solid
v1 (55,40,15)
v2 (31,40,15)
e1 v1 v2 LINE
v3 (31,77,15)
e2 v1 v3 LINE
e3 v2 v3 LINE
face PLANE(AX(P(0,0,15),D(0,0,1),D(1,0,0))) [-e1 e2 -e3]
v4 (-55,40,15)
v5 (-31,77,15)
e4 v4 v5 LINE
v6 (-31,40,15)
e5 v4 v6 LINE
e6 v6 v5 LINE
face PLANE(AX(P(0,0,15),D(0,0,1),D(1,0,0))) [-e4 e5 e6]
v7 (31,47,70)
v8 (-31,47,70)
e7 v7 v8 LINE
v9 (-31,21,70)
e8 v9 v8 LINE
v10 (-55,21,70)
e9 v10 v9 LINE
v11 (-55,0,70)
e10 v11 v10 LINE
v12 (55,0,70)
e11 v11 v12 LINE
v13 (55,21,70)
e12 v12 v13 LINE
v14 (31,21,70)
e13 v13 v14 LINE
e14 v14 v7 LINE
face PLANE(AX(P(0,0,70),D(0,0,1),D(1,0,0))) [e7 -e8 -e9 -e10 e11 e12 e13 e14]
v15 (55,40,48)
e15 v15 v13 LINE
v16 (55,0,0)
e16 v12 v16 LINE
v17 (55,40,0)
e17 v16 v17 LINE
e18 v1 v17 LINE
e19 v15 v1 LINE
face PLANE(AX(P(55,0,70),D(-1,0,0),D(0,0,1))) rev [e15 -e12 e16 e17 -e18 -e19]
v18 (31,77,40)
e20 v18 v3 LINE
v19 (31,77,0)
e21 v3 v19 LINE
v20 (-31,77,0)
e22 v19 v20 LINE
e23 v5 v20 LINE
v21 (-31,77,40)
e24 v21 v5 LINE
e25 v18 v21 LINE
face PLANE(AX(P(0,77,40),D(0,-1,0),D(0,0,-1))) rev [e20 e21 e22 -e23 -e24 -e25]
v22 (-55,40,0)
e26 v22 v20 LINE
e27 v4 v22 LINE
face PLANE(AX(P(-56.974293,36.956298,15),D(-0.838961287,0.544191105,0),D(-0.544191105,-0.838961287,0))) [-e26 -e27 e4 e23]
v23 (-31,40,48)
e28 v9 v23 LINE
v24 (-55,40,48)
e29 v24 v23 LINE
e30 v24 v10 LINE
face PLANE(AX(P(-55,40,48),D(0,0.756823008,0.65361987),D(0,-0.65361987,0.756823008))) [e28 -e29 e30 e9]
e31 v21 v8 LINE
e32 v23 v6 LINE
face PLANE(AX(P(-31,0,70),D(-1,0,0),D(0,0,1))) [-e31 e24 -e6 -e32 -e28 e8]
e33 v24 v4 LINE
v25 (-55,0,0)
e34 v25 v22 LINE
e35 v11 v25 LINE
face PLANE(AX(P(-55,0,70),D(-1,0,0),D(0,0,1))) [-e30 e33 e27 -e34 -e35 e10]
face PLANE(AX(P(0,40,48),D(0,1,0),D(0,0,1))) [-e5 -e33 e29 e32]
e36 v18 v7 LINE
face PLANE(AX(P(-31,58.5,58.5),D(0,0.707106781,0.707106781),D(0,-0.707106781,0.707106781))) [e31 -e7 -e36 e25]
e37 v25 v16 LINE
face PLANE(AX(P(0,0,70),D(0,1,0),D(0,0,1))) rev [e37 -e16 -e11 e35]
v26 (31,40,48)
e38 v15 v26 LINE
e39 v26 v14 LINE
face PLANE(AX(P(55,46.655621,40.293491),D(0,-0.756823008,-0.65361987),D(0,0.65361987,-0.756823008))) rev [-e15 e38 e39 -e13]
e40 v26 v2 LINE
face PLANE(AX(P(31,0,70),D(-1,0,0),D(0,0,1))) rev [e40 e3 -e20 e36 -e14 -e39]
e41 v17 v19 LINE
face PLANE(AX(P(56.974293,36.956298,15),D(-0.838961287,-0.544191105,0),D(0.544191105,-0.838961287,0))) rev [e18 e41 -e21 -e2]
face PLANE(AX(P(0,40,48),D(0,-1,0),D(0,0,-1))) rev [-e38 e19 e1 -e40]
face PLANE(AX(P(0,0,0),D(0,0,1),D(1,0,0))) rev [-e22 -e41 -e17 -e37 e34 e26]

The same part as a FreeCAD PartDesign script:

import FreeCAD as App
import Part
import Sketcher
Q = App.Units.Quantity

doc = App.newDocument("Part")
body = doc.addObject("PartDesign::Body", "Body")

# Sketch on XY plane
sketch1 = body.newObject("Sketcher::SketchObject", "Sketch")
sketch1.AttachmentSupport = (doc.getObject("XY_Plane"), [""])
sketch1.MapMode = "FlatFace"
sketch1.addGeometry(Part.LineSegment(App.Vector(-55, 0, 0), App.Vector(55, 0, 0)), False)
sketch1.addGeometry(Part.LineSegment(App.Vector(55, 0, 0), App.Vector(55, 21, 0)), False)
sketch1.addGeometry(Part.LineSegment(App.Vector(55, 21, 0), App.Vector(31, 21, 0)), False)
sketch1.addGeometry(Part.LineSegment(App.Vector(31, 21, 0), App.Vector(31, 47, 0)), False)
sketch1.addGeometry(Part.LineSegment(App.Vector(31, 47, 0), App.Vector(-31, 47, 0)), False)
sketch1.addGeometry(Part.LineSegment(App.Vector(-31, 47, 0), App.Vector(-31, 21, 0)), False)
sketch1.addGeometry(Part.LineSegment(App.Vector(-31, 21, 0), App.Vector(-55, 21, 0)), False)
sketch1.addGeometry(Part.LineSegment(App.Vector(-55, 21, 0), App.Vector(-55, 0, 0)), False)
sketch1.addConstraint(Sketcher.Constraint("Coincident", 0, 2, 1, 1))
sketch1.addConstraint(Sketcher.Constraint("Coincident", 1, 2, 2, 1))
sketch1.addConstraint(Sketcher.Constraint("Coincident", 2, 2, 3, 1))
sketch1.addConstraint(Sketcher.Constraint("Coincident", 3, 2, 4, 1))
sketch1.addConstraint(Sketcher.Constraint("Coincident", 4, 2, 5, 1))
sketch1.addConstraint(Sketcher.Constraint("Coincident", 5, 2, 6, 1))
sketch1.addConstraint(Sketcher.Constraint("Coincident", 6, 2, 7, 1))
sketch1.addConstraint(Sketcher.Constraint("Coincident", 7, 2, 0, 1))
sketch1.addConstraint(Sketcher.Constraint("Horizontal", 0))
sketch1.addConstraint(Sketcher.Constraint("Vertical", 1))
sketch1.addConstraint(Sketcher.Constraint("Horizontal", 2))
sketch1.addConstraint(Sketcher.Constraint("Vertical", 3))
sketch1.addConstraint(Sketcher.Constraint("Horizontal", 4))
sketch1.addConstraint(Sketcher.Constraint("Vertical", 5))
sketch1.addConstraint(Sketcher.Constraint("Horizontal", 6))
sketch1.addConstraint(Sketcher.Constraint("Vertical", 7))
sketch1.addConstraint(Sketcher.Constraint("Symmetric", 0, 2, 7, 2, -1, 1))
sketch1.addConstraint(Sketcher.Constraint("Symmetric", 2, 2, 5, 2, -2))
sketch1.addConstraint(Sketcher.Constraint("DistanceX", 0, 1, 0, 2, Q("110 mm")))
sketch1.addConstraint(Sketcher.Constraint("DistanceX", 2, 2, 2, 1, Q("24 mm")))
sketch1.addConstraint(Sketcher.Constraint("DistanceY", 1, 1, 1, 2, Q("21 mm")))
sketch1.addConstraint(Sketcher.Constraint("DistanceY", 3, 1, 3, 2, Q("26 mm")))
pad1 = body.newObject("PartDesign::Pad", "Pad")
pad1.Profile = sketch1
pad1.Length = 70

# Sketch on XY plane
sketch2 = body.newObject("Sketcher::SketchObject", "Sketch001")
sketch2.AttachmentSupport = (doc.getObject("XY_Plane"), [""])
sketch2.MapMode = "FlatFace"
sketch2.addGeometry(Part.LineSegment(App.Vector(31, 40, 0), App.Vector(31, 21, 0)), False)
sketch2.addGeometry(Part.LineSegment(App.Vector(31, 21, 0), App.Vector(55, 21, 0)), False)
sketch2.addGeometry(Part.LineSegment(App.Vector(55, 21, 0), App.Vector(55, 40, 0)), False)
sketch2.addGeometry(Part.LineSegment(App.Vector(55, 40, 0), App.Vector(31, 40, 0)), False)
sketch2.addGeometry(Part.LineSegment(App.Vector(-55, 40, 0), App.Vector(-55, 21, 0)), False)
sketch2.addGeometry(Part.LineSegment(App.Vector(-55, 21, 0), App.Vector(-31, 21, 0)), False)
sketch2.addGeometry(Part.LineSegment(App.Vector(-31, 21, 0), App.Vector(-31, 40, 0)), False)
sketch2.addGeometry(Part.LineSegment(App.Vector(-31, 40, 0), App.Vector(-55, 40, 0)), False)
sketch2.addConstraint(Sketcher.Constraint("Coincident", 0, 2, 1, 1))
sketch2.addConstraint(Sketcher.Constraint("Coincident", 1, 2, 2, 1))
sketch2.addConstraint(Sketcher.Constraint("Coincident", 2, 2, 3, 1))
sketch2.addConstraint(Sketcher.Constraint("Coincident", 3, 2, 0, 1))
sketch2.addConstraint(Sketcher.Constraint("Coincident", 4, 2, 5, 1))
sketch2.addConstraint(Sketcher.Constraint("Coincident", 5, 2, 6, 1))
sketch2.addConstraint(Sketcher.Constraint("Coincident", 6, 2, 7, 1))
sketch2.addConstraint(Sketcher.Constraint("Coincident", 7, 2, 4, 1))
sketch2.addConstraint(Sketcher.Constraint("Vertical", 0))
sketch2.addConstraint(Sketcher.Constraint("Horizontal", 1))
sketch2.addConstraint(Sketcher.Constraint("Vertical", 2))
sketch2.addConstraint(Sketcher.Constraint("Horizontal", 3))
sketch2.addConstraint(Sketcher.Constraint("Vertical", 4))
sketch2.addConstraint(Sketcher.Constraint("Horizontal", 5))
sketch2.addConstraint(Sketcher.Constraint("Vertical", 6))
sketch2.addConstraint(Sketcher.Constraint("Horizontal", 7))
sketch2.addConstraint(Sketcher.Constraint("Symmetric", 1, 2, 4, 2, -2))
sketch2.addConstraint(Sketcher.Constraint("Symmetric", 3, 2, 6, 2, -2))
sketch2.addConstraint(Sketcher.Constraint("DistanceX", 1, 1, 1, 2, Q("24 mm")))
sketch2.addConstraint(Sketcher.Constraint("DistanceY", 0, 2, 0, 1, Q("19 mm")))
sketch2.addConstraint(Sketcher.Constraint("DistanceX", -1, 1, 0, 2, Q("31 mm")))
sketch2.addConstraint(Sketcher.Constraint("DistanceY", -1, 1, 0, 2, Q("21 mm")))
pad2 = body.newObject("PartDesign::Pad", "Pad001")
pad2.Profile = sketch2
pad2.Length = 48

# Sketch on XY plane
sketch3 = body.newObject("Sketcher::SketchObject", "Sketch002")
sketch3.AttachmentSupport = (doc.getObject("XY_Plane"), [""])
sketch3.MapMode = "FlatFace"
sketch3.addGeometry(Part.LineSegment(App.Vector(-31, 77, 0), App.Vector(-31, 47, 0)), False)
sketch3.addGeometry(Part.LineSegment(App.Vector(-31, 47, 0), App.Vector(31, 47, 0)), False)
sketch3.addGeometry(Part.LineSegment(App.Vector(31, 47, 0), App.Vector(31, 77, 0)), False)
sketch3.addGeometry(Part.LineSegment(App.Vector(31, 77, 0), App.Vector(-31, 77, 0)), False)
sketch3.addConstraint(Sketcher.Constraint("Coincident", 0, 2, 1, 1))
sketch3.addConstraint(Sketcher.Constraint("Coincident", 1, 2, 2, 1))
sketch3.addConstraint(Sketcher.Constraint("Coincident", 2, 2, 3, 1))
sketch3.addConstraint(Sketcher.Constraint("Coincident", 3, 2, 0, 1))
sketch3.addConstraint(Sketcher.Constraint("Vertical", 0))
sketch3.addConstraint(Sketcher.Constraint("Horizontal", 1))
sketch3.addConstraint(Sketcher.Constraint("Vertical", 2))
sketch3.addConstraint(Sketcher.Constraint("Horizontal", 3))
sketch3.addConstraint(Sketcher.Constraint("DistanceX", 1, 1, 1, 2, Q("62 mm")))
sketch3.addConstraint(Sketcher.Constraint("DistanceY", 0, 2, 0, 1, Q("30 mm")))
sketch3.addConstraint(Sketcher.Constraint("DistanceX", 0, 2, -1, 1, Q("31 mm")))
sketch3.addConstraint(Sketcher.Constraint("DistanceY", -1, 1, 0, 2, Q("47 mm")))
pad3 = body.newObject("PartDesign::Pad", "Pad002")
pad3.Profile = sketch3
pad3.Length = 40

# Sketch on XY plane
sketch4 = body.newObject("Sketcher::SketchObject", "Sketch003")
sketch4.AttachmentSupport = (doc.getObject("XY_Plane"), [""])
sketch4.MapMode = "FlatFace"
sketch4.addGeometry(Part.LineSegment(App.Vector(31, 40, 0), App.Vector(55, 40, 0)), False)
sketch4.addGeometry(Part.LineSegment(App.Vector(55, 40, 0), App.Vector(31, 77, 0)), False)
sketch4.addGeometry(Part.LineSegment(App.Vector(31, 77, 0), App.Vector(31, 40, 0)), False)
sketch4.addGeometry(Part.LineSegment(App.Vector(-31, 77, 0), App.Vector(-55, 40, 0)), False)
sketch4.addGeometry(Part.LineSegment(App.Vector(-55, 40, 0), App.Vector(-31, 40, 0)), False)
sketch4.addGeometry(Part.LineSegment(App.Vector(-31, 40, 0), App.Vector(-31, 77, 0)), False)
sketch4.addConstraint(Sketcher.Constraint("Coincident", 0, 2, 1, 1))
sketch4.addConstraint(Sketcher.Constraint("Coincident", 1, 2, 2, 1))
sketch4.addConstraint(Sketcher.Constraint("Coincident", 2, 2, 0, 1))
sketch4.addConstraint(Sketcher.Constraint("Coincident", 3, 2, 4, 1))
sketch4.addConstraint(Sketcher.Constraint("Coincident", 4, 2, 5, 1))
sketch4.addConstraint(Sketcher.Constraint("Coincident", 5, 2, 3, 1))
sketch4.addConstraint(Sketcher.Constraint("Horizontal", 0))
sketch4.addConstraint(Sketcher.Constraint("Vertical", 2))
sketch4.addConstraint(Sketcher.Constraint("Horizontal", 4))
sketch4.addConstraint(Sketcher.Constraint("Vertical", 5))
sketch4.addConstraint(Sketcher.Constraint("Symmetric", 0, 2, 3, 2, -2))
sketch4.addConstraint(Sketcher.Constraint("Symmetric", 1, 2, 5, 2, -2))
sketch4.addConstraint(Sketcher.Constraint("DistanceX", 0, 1, 0, 2, Q("24 mm")))
sketch4.addConstraint(Sketcher.Constraint("DistanceY", 2, 2, 2, 1, Q("37 mm")))
sketch4.addConstraint(Sketcher.Constraint("DistanceX", -1, 1, 0, 2, Q("55 mm")))
sketch4.addConstraint(Sketcher.Constraint("DistanceY", -1, 1, 0, 2, Q("40 mm")))
pad4 = body.newObject("PartDesign::Pad", "Pad003")
pad4.Profile = sketch4
pad4.Length = 15

# Sketch on YZ plane
sketch5 = body.newObject("Sketcher::SketchObject", "Sketch004")
sketch5.AttachmentSupport = (doc.getObject("YZ_Plane"), [""])
sketch5.MapMode = "FlatFace"
sketch5.AttachmentOffset = App.Placement(App.Vector(0, 0, 31), App.Rotation())
sketch5.addGeometry(Part.LineSegment(App.Vector(77, 40, 0), App.Vector(47, 70, 0)), False)
sketch5.addGeometry(Part.LineSegment(App.Vector(47, 70, 0), App.Vector(47, 40, 0)), False)
sketch5.addGeometry(Part.LineSegment(App.Vector(47, 40, 0), App.Vector(77, 40, 0)), False)
sketch5.addConstraint(Sketcher.Constraint("Coincident", 0, 2, 1, 1))
sketch5.addConstraint(Sketcher.Constraint("Coincident", 1, 2, 2, 1))
sketch5.addConstraint(Sketcher.Constraint("Coincident", 2, 2, 0, 1))
sketch5.addConstraint(Sketcher.Constraint("Vertical", 1))
sketch5.addConstraint(Sketcher.Constraint("Horizontal", 2))
sketch5.addConstraint(Sketcher.Constraint("Equal", 2, 1))
sketch5.addConstraint(Sketcher.Constraint("DistanceX", 2, 1, 2, 2, Q("30 mm")))
sketch5.addConstraint(Sketcher.Constraint("DistanceX", -1, 1, 0, 2, Q("47 mm")))
sketch5.addConstraint(Sketcher.Constraint("DistanceY", -1, 1, 0, 2, Q("70 mm")))
pad5 = body.newObject("PartDesign::Pad", "Pad004")
pad5.Profile = sketch5
pad5.Length = 62
pad5.Reversed = True

# Sketch on YZ plane
sketch6 = body.newObject("Sketcher::SketchObject", "Sketch005")
sketch6.AttachmentSupport = (doc.getObject("YZ_Plane"), [""])
sketch6.MapMode = "FlatFace"
sketch6.AttachmentOffset = App.Placement(App.Vector(0, 0, 31), App.Rotation())
sketch6.addGeometry(Part.LineSegment(App.Vector(40, 48, 0), App.Vector(21, 70, 0)), False)
sketch6.addGeometry(Part.LineSegment(App.Vector(21, 70, 0), App.Vector(21, 48, 0)), False)
sketch6.addGeometry(Part.LineSegment(App.Vector(21, 48, 0), App.Vector(40, 48, 0)), False)
sketch6.addConstraint(Sketcher.Constraint("Coincident", 0, 2, 1, 1))
sketch6.addConstraint(Sketcher.Constraint("Coincident", 1, 2, 2, 1))
sketch6.addConstraint(Sketcher.Constraint("Coincident", 2, 2, 0, 1))
sketch6.addConstraint(Sketcher.Constraint("Vertical", 1))
sketch6.addConstraint(Sketcher.Constraint("Horizontal", 2))
sketch6.addConstraint(Sketcher.Constraint("DistanceX", 2, 1, 2, 2, Q("19 mm")))
sketch6.addConstraint(Sketcher.Constraint("DistanceY", 1, 2, 1, 1, Q("22 mm")))
sketch6.addConstraint(Sketcher.Constraint("DistanceX", -1, 1, 0, 2, Q("21 mm")))
sketch6.addConstraint(Sketcher.Constraint("DistanceY", -1, 1, 0, 2, Q("70 mm")))
pad6 = body.newObject("PartDesign::Pad", "Pad005")
pad6.Profile = sketch6
pad6.Length = 24

# Sketch on YZ plane
sketch7 = body.newObject("Sketcher::SketchObject", "Sketch006")
sketch7.AttachmentSupport = (doc.getObject("YZ_Plane"), [""])
sketch7.MapMode = "FlatFace"
sketch7.AttachmentOffset = App.Placement(App.Vector(0, 0, 31), App.Rotation())
sketch7.addGeometry(Part.LineSegment(App.Vector(40, 48, 0), App.Vector(21, 70, 0)), False)
sketch7.addGeometry(Part.LineSegment(App.Vector(21, 70, 0), App.Vector(21, 48, 0)), False)
sketch7.addGeometry(Part.LineSegment(App.Vector(21, 48, 0), App.Vector(40, 48, 0)), False)
sketch7.addConstraint(Sketcher.Constraint("Coincident", 0, 2, 1, 1))
sketch7.addConstraint(Sketcher.Constraint("Coincident", 1, 2, 2, 1))
sketch7.addConstraint(Sketcher.Constraint("Coincident", 2, 2, 0, 1))
sketch7.addConstraint(Sketcher.Constraint("Vertical", 1))
sketch7.addConstraint(Sketcher.Constraint("Horizontal", 2))
sketch7.addConstraint(Sketcher.Constraint("DistanceX", 2, 1, 2, 2, Q("19 mm")))
sketch7.addConstraint(Sketcher.Constraint("DistanceY", 1, 2, 1, 1, Q("22 mm")))
sketch7.addConstraint(Sketcher.Constraint("DistanceX", -1, 1, 0, 2, Q("21 mm")))
sketch7.addConstraint(Sketcher.Constraint("DistanceY", -1, 1, 0, 2, Q("70 mm")))
pad7 = body.newObject("PartDesign::Pad", "Pad006")
pad7.Profile = sketch7
pad7.Length = 86
pad7.Reversed = True

doc.recompute()
